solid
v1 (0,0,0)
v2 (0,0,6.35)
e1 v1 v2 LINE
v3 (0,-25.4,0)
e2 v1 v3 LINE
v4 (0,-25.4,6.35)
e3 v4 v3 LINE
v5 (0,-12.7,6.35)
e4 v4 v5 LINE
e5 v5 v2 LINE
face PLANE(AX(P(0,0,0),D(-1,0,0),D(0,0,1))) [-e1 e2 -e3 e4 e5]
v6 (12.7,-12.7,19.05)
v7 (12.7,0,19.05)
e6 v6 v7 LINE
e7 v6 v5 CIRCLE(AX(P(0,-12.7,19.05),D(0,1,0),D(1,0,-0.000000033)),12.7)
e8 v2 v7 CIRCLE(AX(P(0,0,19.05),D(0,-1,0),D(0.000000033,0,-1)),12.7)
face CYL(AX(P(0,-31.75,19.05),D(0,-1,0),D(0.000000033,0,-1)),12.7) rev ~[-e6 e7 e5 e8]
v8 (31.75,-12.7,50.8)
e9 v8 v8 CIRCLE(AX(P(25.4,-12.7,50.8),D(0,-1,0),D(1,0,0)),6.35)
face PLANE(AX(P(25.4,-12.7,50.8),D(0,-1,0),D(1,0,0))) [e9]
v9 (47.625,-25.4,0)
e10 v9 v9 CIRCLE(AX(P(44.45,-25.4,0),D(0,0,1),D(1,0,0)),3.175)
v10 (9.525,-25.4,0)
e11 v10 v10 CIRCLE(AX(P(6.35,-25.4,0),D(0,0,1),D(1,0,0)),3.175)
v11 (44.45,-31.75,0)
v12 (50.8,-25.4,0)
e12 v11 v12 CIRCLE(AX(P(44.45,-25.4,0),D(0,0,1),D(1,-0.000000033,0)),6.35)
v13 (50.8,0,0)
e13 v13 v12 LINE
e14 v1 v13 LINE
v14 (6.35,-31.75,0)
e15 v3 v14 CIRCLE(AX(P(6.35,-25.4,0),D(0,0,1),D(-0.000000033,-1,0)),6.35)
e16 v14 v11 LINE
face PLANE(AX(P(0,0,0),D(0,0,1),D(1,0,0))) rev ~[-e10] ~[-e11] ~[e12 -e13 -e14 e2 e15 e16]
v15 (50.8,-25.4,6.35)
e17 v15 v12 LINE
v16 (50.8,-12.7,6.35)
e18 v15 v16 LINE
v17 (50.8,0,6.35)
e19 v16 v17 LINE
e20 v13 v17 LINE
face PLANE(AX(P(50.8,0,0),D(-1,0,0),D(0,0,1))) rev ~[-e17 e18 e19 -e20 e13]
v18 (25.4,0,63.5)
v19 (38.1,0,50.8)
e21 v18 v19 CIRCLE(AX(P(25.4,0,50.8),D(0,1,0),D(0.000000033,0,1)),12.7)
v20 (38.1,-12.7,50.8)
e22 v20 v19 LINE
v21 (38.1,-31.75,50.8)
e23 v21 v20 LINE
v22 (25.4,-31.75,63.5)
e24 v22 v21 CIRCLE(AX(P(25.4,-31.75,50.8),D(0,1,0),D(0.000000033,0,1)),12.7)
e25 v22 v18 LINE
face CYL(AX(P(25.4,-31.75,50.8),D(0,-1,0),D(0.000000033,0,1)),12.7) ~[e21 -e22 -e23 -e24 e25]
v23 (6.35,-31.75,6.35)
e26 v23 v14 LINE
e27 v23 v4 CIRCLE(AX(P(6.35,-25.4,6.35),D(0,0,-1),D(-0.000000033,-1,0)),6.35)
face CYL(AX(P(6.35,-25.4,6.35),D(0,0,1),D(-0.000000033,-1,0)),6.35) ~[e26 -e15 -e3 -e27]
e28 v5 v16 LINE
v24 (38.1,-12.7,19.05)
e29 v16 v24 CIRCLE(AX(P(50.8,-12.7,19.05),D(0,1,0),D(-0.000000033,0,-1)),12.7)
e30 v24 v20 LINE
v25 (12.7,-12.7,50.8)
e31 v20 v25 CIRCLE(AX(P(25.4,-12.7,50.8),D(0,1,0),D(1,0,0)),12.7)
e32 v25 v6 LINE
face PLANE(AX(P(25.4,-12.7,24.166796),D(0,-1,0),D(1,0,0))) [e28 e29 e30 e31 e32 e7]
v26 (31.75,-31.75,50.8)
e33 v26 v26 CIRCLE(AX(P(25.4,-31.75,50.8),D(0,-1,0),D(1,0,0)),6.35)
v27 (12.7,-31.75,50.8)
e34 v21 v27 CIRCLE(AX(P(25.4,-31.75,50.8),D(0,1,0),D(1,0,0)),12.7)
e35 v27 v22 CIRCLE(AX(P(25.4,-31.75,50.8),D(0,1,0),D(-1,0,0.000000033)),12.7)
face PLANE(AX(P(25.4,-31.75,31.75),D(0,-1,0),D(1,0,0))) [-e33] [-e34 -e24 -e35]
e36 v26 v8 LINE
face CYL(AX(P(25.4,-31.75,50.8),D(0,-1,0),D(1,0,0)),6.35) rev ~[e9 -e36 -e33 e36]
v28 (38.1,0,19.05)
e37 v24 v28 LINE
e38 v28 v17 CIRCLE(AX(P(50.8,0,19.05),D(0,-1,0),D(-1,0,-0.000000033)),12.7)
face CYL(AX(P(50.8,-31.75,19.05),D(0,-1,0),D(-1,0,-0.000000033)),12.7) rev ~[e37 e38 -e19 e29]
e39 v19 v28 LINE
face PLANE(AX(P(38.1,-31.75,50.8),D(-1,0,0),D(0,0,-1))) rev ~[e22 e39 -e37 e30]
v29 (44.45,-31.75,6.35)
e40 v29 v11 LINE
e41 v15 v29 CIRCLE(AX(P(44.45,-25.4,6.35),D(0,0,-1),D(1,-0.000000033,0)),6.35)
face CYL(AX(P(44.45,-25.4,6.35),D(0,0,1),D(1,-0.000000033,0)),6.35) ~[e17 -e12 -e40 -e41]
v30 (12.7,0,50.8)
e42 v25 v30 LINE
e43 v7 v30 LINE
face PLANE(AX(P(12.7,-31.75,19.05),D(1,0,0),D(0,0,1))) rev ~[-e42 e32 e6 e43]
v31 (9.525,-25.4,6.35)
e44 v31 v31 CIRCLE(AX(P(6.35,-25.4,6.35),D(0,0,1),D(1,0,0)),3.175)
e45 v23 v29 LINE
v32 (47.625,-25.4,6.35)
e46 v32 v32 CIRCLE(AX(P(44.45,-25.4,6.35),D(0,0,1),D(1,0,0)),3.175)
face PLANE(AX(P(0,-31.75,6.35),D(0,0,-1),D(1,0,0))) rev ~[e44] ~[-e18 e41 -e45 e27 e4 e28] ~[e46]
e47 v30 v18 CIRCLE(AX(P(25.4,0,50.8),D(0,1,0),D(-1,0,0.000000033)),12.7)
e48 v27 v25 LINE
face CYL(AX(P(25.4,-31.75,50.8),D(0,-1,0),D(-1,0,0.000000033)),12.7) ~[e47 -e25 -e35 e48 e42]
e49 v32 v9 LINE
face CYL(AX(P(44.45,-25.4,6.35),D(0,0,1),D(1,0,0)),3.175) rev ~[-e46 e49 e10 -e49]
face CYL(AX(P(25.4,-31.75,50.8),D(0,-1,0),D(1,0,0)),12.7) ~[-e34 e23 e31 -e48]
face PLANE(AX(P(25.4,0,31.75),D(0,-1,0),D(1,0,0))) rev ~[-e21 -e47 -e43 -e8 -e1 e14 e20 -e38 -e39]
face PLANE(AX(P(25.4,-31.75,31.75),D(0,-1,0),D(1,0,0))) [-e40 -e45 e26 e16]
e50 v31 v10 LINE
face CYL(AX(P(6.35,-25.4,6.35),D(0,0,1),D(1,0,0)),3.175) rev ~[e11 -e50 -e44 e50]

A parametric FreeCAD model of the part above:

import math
import FreeCAD as App
import Part
import Sketcher
from FreeCAD import Vector
Q = App.Units.Quantity


def add_polygon(sketch, points):
    """Adds a closed chain of lines whose ends are joined by coincident constraints."""
    first, n = sketch.GeometryCount, len(points)
    for a, b in zip(points, points[1:] + points[:1]):
        sketch.addGeometry(Part.LineSegment(App.Vector(*a, 0), App.Vector(*b, 0)), False)
    for i in range(n):
        sketch.addConstraint(Sketcher.Constraint("Coincident", first + i, 2, first + (i + 1) % n, 1))

doc = App.newDocument("Part")
body = doc.addObject("PartDesign::Body", "Body")

sketch1 = body.newObject("Sketcher::SketchObject", "Sketch")
sketch1.AttachmentSupport = (doc.getObject("XZ_Plane"), [""])
sketch1.MapMode = "FlatFace"
add_polygon(sketch1, [(0, 64), (0, 0), (51, 0), (51, 64)])
sketch1.addConstraint([
    Sketcher.Constraint("Vertical", 0),
    Sketcher.Constraint("Horizontal", 1),
    Sketcher.Constraint("Vertical", 2),
    Sketcher.Constraint("Horizontal", 3),
    Sketcher.Constraint("Coincident", 0, 2, -1, 1),
    Sketcher.Constraint("DistanceX", 1, 1, 1, 2, Q("2 in")),
    Sketcher.Constraint("DistanceY", 0, 2, 0, 1, Q("2.5 in")),
])
pad1 = body.newObject("PartDesign::Pad", "Pad")
pad1.Profile = sketch1
pad1.Length = Q("1.25 in")

sketch2 = body.newObject("Sketcher::SketchObject", "Sketch001")
sketch2.AttachmentSupport = (doc.getObject("XZ_Plane"), [""])
sketch2.MapMode = "FlatFace"
sketch2.AttachmentOffset = App.Placement(Vector(0, 0, 1.25 * 25.4), App.Rotation())
sketch2.addGeometry([
    Part.LineSegment(Vector(0, 64, 0), Vector(0, 6, 0)),
    Part.ArcOfCircle(Part.Circle(Vector(0, 19, 0), Vector(0, 0, 1), 13), math.radians(-90), math.radians(0)),
    Part.LineSegment(Vector(13, 19, 0), Vector(13, 51, 0)),
    Part.ArcOfCircle(Part.Circle(Vector(25, 51, 0), Vector(0, 0, 1), 13), math.radians(90), math.radians(180)),
    Part.LineSegment(Vector(25, 64, 0), Vector(0, 64, 0)),
    Part.ArcOfCircle(Part.Circle(Vector(51, 19, 0), Vector(0, 0, 1), 13), math.radians(-180), math.radians(-90)),
    Part.LineSegment(Vector(51, 6, 0), Vector(51, 64, 0)),
    Part.LineSegment(Vector(51, 64, 0), Vector(25, 64, 0)),
    Part.ArcOfCircle(Part.Circle(Vector(25, 51, 0), Vector(0, 0, 1), 13), math.radians(0), math.radians(90)),
    Part.LineSegment(Vector(38, 51, 0), Vector(38, 19, 0)),
], False)
sketch2.addConstraint([
    Sketcher.Constraint("Coincident", 0, 2, 1, 1),
    Sketcher.Constraint("Tangent", 1, 2, 2, 1),
    Sketcher.Constraint("Tangent", 2, 2, 3, 2),
    Sketcher.Constraint("Tangent", 3, 1, 4, 1),
    Sketcher.Constraint("Coincident", 4, 2, 0, 1),
    Sketcher.Constraint("Coincident", 5, 2, 6, 1),
    Sketcher.Constraint("Coincident", 6, 2, 7, 1),
    Sketcher.Constraint("Tangent", 7, 2, 8, 2),
    Sketcher.Constraint("Tangent", 8, 1, 9, 1),
    Sketcher.Constraint("Tangent", 9, 2, 5, 1),
    Sketcher.Constraint("Vertical", 0),
    Sketcher.Constraint("Vertical", 2),
    Sketcher.Constraint("Horizontal", 4),
    Sketcher.Constraint("Vertical", 6),
    Sketcher.Constraint("Horizontal", 7),
    Sketcher.Constraint("Vertical", 9),
    Sketcher.Constraint("Coincident", 8, 3, 3, 3),
    Sketcher.Constraint("Equal", 1, 3),
    Sketcher.Constraint("Equal", 3, 5),
    Sketcher.Constraint("Equal", 5, 8),
    Sketcher.Constraint("PointOnObject", 1, 3, -2),
    Sketcher.Constraint("PointOnObject", 0, 2, -2),
    Sketcher.Constraint("Horizontal", 1, 3, 5, 3),
    Sketcher.Constraint("Equal", 4, 7),
    Sketcher.Constraint("Radius", 1, Q("0.5 in")),
    Sketcher.Constraint("DistanceY", -1, 1, 3, 3, Q("2 in")),
    Sketcher.Constraint("DistanceY", 0, 2, 0, 1, Q("2.25 in")),
])
pocket1 = body.newObject("PartDesign::Pocket", "Pocket")
pocket1.Profile = sketch2
pocket1.Length = Q("1.25 in")

sketch3 = body.newObject("Sketcher::SketchObject", "Sketch002")
sketch3.AttachmentSupport = (doc.getObject("XZ_Plane"), [""])
sketch3.MapMode = "FlatFace"
sketch3.AttachmentOffset = App.Placement(Vector(0, 0, 1.25 * 25.4), App.Rotation())
sketch3.addGeometry([
    Part.LineSegment(Vector(38, 19, 0), Vector(38, 51, 0)),
    Part.ArcOfCircle(Part.Circle(Vector(25, 51, 0), Vector(0, 0, 1), 13), math.radians(180), math.radians(360)),
    Part.LineSegment(Vector(13, 51, 0), Vector(13, 19, 0)),
    Part.ArcOfCircle(Part.Circle(Vector(0, 19, 0), Vector(0, 0, 1), 13), math.radians(-90), math.radians(0)),
    Part.LineSegment(Vector(0, 6, 0), Vector(51, 6, 0)),
    Part.ArcOfCircle(Part.Circle(Vector(51, 19, 0), Vector(0, 0, 1), 13), math.radians(-180), math.radians(-90)),
    Part.Circle(Vector(25, 51, 0), Vector(0, 0, 1), 6),
], False)
sketch3.addConstraint([
    Sketcher.Constraint("Tangent", 0, 2, 1, 2),
    Sketcher.Constraint("Tangent", 1, 1, 2, 1),
    Sketcher.Constraint("Tangent", 2, 2, 3, 2),
    Sketcher.Constraint("Tangent", 3, 1, 4, 1),
    Sketcher.Constraint("Tangent", 4, 2, 5, 2),
    Sketcher.Constraint("Tangent", 5, 1, 0, 1),
    Sketcher.Constraint("Vertical", 0),
    Sketcher.Constraint("Vertical", 2),
    Sketcher.Constraint("Horizontal", 4),
    Sketcher.Constraint("Coincident", 6, 3, 1, 3),
    Sketcher.Constraint("Equal", 1, 3),
    Sketcher.Constraint("Equal", 3, 5),
    Sketcher.Constraint("PointOnObject", 3, 3, -2),
    Sketcher.Constraint("Diameter", 6, Q("0.5 in")),
    Sketcher.Constraint("Radius", 1, Q("0.5 in")),
    Sketcher.Constraint("DistanceY", -1, 1, 1, 3, Q("2 in")),
    Sketcher.Constraint("DistanceY", 0, 1, 0, 2, Q("1.25 in")),
])
pocket2 = body.newObject("PartDesign::Pocket", "Pocket001")
pocket2.Profile = sketch3
pocket2.Length = Q("0.75 in")

sketch4 = body.newObject("Sketcher::SketchObject", "Sketch003")
sketch4.AttachmentSupport = (doc.getObject("XY_Plane"), [""])
sketch4.MapMode = "FlatFace"
sketch4.AttachmentOffset = App.Placement(Vector(0, 0, 0.25 * 25.4), App.Rotation())
sketch4.addGeometry([
    Part.Circle(Vector(6.3, -25.4, 0), Vector(0, 0, 1), 3.2),
    Part.ArcOfCircle(Part.Circle(Vector(6.4, -25.4, 0), Vector(0, 0, 1), 6.4), math.radians(-180), math.radians(-90)),
    Part.LineSegment(Vector(0, -25.4, 0), Vector(0, -31.8, 0)),
    Part.LineSegment(Vector(0, -31.8, 0), Vector(6.3, -31.8, 0)),
    Part.Circle(Vector(44.5, -25.4, 0), Vector(0, 0, 1), 3.2),
    Part.ArcOfCircle(Part.Circle(Vector(44.4, -25.4, 0), Vector(0, 0, 1), 6.4), math.radians(-90), math.radians(0)),
    Part.LineSegment(Vector(44.5, -31.8, 0), Vector(50.8, -31.8, 0)),
    Part.LineSegment(Vector(50.8, -31.8, 0), Vector(50.8, -25.4, 0)),
], False)
sketch4.addConstraint([
    Sketcher.Constraint("Tangent", 1, 1, 2, 1),
    Sketcher.Constraint("Coincident", 2, 2, 3, 1),
    Sketcher.Constraint("Tangent", 3, 2, 1, 2),
    Sketcher.Constraint("Tangent", 5, 1, 6, 1),
    Sketcher.Constraint("Coincident", 6, 2, 7, 1),
    Sketcher.Constraint("Tangent", 7, 2, 5, 2),
    Sketcher.Constraint("Vertical", 2),
    Sketcher.Constraint("Horizontal", 3),
    Sketcher.Constraint("Horizontal", 6),
    Sketcher.Constraint("Vertical", 7),
    Sketcher.Constraint("Coincident", 1, 3, 0, 3),
    Sketcher.Constraint("Coincident", 5, 3, 4, 3),
    Sketcher.Constraint("Equal", 0, 4),
    Sketcher.Constraint("Equal", 1, 5),
    Sketcher.Constraint("PointOnObject", 1, 1, -2),
    Sketcher.Constraint("Horizontal", 1, 3, 4, 3),
    Sketcher.Constraint("Diameter", 0, Q("0.25 in")),
    Sketcher.Constraint("Radius", 1, Q("0.25 in")),
    Sketcher.Constraint("DistanceY", 0, 3, -1, 1, Q("1 in")),
    Sketcher.Constraint("DistanceX", -1, 1, 6, 2, Q("2 in")),
])
pocket3 = body.newObject("PartDesign::Pocket", "Pocket002")
pocket3.Profile = sketch4
pocket3.Length = Q("1 in")

doc.recompute()
